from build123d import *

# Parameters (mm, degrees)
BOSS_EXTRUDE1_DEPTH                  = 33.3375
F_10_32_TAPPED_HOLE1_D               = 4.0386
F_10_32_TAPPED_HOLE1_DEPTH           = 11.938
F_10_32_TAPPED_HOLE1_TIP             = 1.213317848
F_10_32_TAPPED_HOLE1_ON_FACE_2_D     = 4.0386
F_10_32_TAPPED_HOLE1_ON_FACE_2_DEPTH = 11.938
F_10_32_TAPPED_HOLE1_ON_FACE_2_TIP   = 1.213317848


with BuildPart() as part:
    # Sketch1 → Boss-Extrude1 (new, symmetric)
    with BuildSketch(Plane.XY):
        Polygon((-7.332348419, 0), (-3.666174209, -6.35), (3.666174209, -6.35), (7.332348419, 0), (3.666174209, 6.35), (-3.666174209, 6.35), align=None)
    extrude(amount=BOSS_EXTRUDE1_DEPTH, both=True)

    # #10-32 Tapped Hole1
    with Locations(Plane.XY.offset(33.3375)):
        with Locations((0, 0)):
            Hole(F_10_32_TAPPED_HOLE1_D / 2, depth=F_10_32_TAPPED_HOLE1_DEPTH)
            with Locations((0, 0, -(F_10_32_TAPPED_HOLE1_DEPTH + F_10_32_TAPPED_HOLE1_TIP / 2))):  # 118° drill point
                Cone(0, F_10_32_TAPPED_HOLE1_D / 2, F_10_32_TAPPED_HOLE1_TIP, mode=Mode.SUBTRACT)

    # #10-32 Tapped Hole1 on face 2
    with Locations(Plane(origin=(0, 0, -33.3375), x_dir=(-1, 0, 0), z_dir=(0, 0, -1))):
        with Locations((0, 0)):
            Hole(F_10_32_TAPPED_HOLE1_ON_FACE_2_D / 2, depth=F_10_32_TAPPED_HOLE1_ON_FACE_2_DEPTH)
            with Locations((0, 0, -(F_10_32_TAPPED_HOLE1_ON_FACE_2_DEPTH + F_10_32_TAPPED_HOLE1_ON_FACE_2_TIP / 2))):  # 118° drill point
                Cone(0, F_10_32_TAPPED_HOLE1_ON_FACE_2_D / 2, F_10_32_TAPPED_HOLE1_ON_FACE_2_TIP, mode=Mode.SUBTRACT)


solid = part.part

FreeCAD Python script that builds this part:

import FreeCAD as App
import Part
import Sketcher

V = App.Vector
Q = App.Units.Quantity


def add_polygon(sketch, points):
    """Adds a closed chain of lines whose ends are joined by coincident constraints."""
    first, n = sketch.GeometryCount, len(points)
    for a, b in zip(points, points[1:] + points[:1]):
        sketch.addGeometry(Part.LineSegment(App.Vector(*a, 0), App.Vector(*b, 0)), False)
    for i in range(n):
        sketch.addConstraint(Sketcher.Constraint("Coincident", first + i, 2, first + (i + 1) % n, 1))

doc = App.newDocument("Part")
body = doc.addObject("PartDesign::Body", "Body")

sketch1 = body.newObject("Sketcher::SketchObject", "Sketch")
sketch1.AttachmentSupport = (doc.getObject("XY_Plane"), [""])
sketch1.MapMode = "FlatFace"
add_polygon(sketch1, [(-7, 0), (-4, -6), (4, -6), (7, 0), (4, 6), (-4, 6)])
sketch1.addConstraint([
    Sketcher.Constraint("Horizontal", 1),
    Sketcher.Constraint("Horizontal", 4),
    Sketcher.Constraint("Symmetric", 0, 2, 3, 2, -1, 1),
    Sketcher.Constraint("Symmetric", 2, 2, 5, 2, -1, 1),
    Sketcher.Constraint("PointOnObject", 2, 2, -1),
    Sketcher.Constraint("Parallel", 2, 5),
    Sketcher.Constraint("Vertical", 1, 2, 3, 2),
    Sketcher.Constraint("Angle", 0, Q("-60 deg")),
    Sketcher.Constraint("DistanceY", 1, 2, 3, 2, Q("0.5 in")),
    Sketcher.Constraint("DistanceX", 1, 1, 1, 2, Q("7.332348 mm")),
])
pad1 = body.newObject("PartDesign::Pad", "Pad")
pad1.Profile = sketch1
pad1.Length = Q("2.625 in")
pad1.Midplane = True

sketch2 = body.newObject("Sketcher::SketchObject", "Sketch001")
sketch2.AttachmentSupport = (doc.getObject("XY_Plane"), [""])
sketch2.MapMode = "FlatFace"
sketch2.AttachmentOffset = App.Placement(V(0, 0, 1.3125 * 25.4), App.Rotation())
sketch2.addGeometry(Part.Circle(V(0, 0, 0), V(0, 0, 1), 2), False)
sketch2.addConstraint([
    Sketcher.Constraint("Coincident", 0, 3, -1, 1),
    Sketcher.Constraint("Diameter", 0, Q("0.159 in")),
])
doc.recompute()
hole = body.newObject("PartDesign::Hole", "Hole")
hole.Profile = sketch2
hole.ThreadType = "None"
hole.Diameter = Q("0.159 in")
hole.DepthType = "Dimension"
hole.Depth = Q("0.47 in")
hole.DrillPoint = "Angled"
hole.DrillPointAngle = 118

sketch3 = body.newObject("Sketcher::SketchObject", "Sketch002")
sketch3.AttachmentSupport = (doc.getObject("XY_Plane"), [""])
sketch3.MapMode = "FlatFace"
sketch3.AttachmentOffset = App.Placement(V(0, 0, -1.3125 * 25.4), App.Rotation())
sketch3.addGeometry(Part.Circle(V(0, 0, 0), V(0, 0, 1), 2), False)
sketch3.addConstraint([
    Sketcher.Constraint("Coincident", 0, 3, -1, 1),
    Sketcher.Constraint("Diameter", 0, Q("0.159 in")),
])
doc.recompute()
hole2 = body.newObject("PartDesign::Hole", "Hole001")
hole2.Profile = sketch3
hole2.ThreadType = "None"
hole2.Diameter = Q("0.159 in")
hole2.DepthType = "Dimension"
hole2.Depth = Q("0.47 in")
hole2.DrillPoint = "Angled"
hole2.DrillPointAngle = 118
hole2.Reversed = True

doc.recompute()
